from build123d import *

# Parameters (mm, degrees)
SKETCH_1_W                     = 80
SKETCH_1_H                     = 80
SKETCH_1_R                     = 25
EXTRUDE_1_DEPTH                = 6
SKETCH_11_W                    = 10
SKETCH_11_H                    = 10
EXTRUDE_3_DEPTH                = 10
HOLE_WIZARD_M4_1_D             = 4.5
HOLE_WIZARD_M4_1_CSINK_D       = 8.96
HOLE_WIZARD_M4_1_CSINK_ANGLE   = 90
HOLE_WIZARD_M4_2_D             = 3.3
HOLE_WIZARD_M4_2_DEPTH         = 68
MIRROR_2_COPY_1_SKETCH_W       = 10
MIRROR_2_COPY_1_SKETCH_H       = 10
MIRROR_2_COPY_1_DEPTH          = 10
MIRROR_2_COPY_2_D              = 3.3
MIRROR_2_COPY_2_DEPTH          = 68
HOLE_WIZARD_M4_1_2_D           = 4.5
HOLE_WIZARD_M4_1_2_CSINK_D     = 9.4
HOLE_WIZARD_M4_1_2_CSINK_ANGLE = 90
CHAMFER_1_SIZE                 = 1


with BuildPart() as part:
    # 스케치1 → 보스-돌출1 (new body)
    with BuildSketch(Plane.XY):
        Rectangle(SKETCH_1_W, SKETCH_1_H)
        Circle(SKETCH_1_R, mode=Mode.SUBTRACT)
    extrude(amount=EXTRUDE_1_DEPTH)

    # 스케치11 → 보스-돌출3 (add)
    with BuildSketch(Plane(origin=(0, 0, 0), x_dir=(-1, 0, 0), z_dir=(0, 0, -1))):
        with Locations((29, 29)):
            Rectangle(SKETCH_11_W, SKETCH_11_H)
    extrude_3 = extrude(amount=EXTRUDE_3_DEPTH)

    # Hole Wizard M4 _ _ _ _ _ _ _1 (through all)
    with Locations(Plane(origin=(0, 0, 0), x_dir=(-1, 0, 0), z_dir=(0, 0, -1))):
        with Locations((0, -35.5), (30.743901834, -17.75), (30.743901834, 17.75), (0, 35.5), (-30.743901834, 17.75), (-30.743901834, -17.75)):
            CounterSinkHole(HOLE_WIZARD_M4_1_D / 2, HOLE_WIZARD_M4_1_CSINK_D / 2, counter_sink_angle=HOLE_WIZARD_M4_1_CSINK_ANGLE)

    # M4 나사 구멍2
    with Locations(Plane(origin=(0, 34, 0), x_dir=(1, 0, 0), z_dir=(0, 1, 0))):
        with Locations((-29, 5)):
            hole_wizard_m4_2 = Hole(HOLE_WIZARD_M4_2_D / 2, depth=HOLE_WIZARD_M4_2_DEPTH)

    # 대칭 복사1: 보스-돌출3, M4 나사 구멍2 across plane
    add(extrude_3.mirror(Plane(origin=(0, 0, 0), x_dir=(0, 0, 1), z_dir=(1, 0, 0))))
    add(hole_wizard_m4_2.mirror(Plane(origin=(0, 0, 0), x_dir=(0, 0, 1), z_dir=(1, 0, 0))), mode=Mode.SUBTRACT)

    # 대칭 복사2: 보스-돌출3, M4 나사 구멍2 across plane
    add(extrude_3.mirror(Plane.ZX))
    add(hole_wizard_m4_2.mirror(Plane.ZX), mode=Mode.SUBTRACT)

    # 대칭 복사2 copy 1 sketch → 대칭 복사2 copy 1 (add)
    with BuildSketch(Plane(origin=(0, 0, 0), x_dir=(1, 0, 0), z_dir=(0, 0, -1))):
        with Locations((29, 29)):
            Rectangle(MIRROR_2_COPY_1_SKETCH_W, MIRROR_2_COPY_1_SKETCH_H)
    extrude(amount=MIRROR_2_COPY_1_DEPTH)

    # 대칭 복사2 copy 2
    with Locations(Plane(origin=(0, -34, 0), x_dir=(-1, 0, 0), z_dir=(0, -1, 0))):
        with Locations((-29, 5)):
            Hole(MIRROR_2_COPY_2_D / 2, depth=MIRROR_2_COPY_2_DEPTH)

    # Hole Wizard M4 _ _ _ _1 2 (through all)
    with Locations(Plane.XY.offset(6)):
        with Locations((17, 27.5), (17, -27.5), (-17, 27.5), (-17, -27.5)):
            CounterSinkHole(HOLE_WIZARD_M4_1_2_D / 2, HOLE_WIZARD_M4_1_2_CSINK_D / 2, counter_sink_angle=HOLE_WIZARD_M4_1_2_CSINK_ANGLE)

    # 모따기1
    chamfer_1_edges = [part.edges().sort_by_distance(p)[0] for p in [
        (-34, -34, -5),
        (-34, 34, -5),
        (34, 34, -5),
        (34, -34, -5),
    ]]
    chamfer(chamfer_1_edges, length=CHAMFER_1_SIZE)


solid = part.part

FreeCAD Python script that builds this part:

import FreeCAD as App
import Part
import Sketcher
from FreeCAD import Vector
Q = App.Units.Quantity


def edges_at(feature, points):
    """Names of the edges that pass closest to the given points."""
    edges = feature.Shape.Edges
    near = lambda p: min(range(len(edges)), key=lambda i: edges[i].distToShape(Part.Vertex(*p))[0])
    return sorted({f"Edge{near(p) + 1}" for p in points})

doc = App.newDocument("Part")
body = doc.addObject("PartDesign::Body", "Body")

# Sketch on XY plane
sketch1 = body.newObject("Sketcher::SketchObject", "Sketch")
sketch1.AttachmentSupport = (doc.getObject("XY_Plane"), [""])
sketch1.MapMode = "FlatFace"
sketch1.addGeometry([
    Part.LineSegment(Vector(-40, 40, 0), Vector(-40, -40, 0)),  # 0
    Part.LineSegment(Vector(-40, -40, 0), Vector(40, -40, 0)),  # 1
    Part.LineSegment(Vector(40, -40, 0), Vector(40, 40, 0)),  # 2
    Part.LineSegment(Vector(40, 40, 0), Vector(-40, 40, 0)),  # 3
    Part.Circle(Vector(0, 0, 0), Vector(0, 0, 1), 25),  # 4
], False)
sketch1.addConstraint([
    Sketcher.Constraint("Coincident", 0, 2, 1, 1),
    Sketcher.Constraint("Coincident", 1, 2, 2, 1),
    Sketcher.Constraint("Coincident", 2, 2, 3, 1),
    Sketcher.Constraint("Coincident", 3, 2, 0, 1),
    Sketcher.Constraint("Vertical", 0),
    Sketcher.Constraint("Horizontal", 1),
    Sketcher.Constraint("Vertical", 2),
    Sketcher.Constraint("Horizontal", 3),
    Sketcher.Constraint("Coincident", 4, 3, -1, 1),
    Sketcher.Constraint("Symmetric", 0, 2, 2, 2, -1, 1),
    Sketcher.Constraint("Equal", 3, 0),
    Sketcher.Constraint("Diameter", 4, Q("50 mm")),
    Sketcher.Constraint("DistanceX", 1, 1, 1, 2, Q("80 mm")),
])
pad1 = body.newObject("PartDesign::Pad", "Pad")
pad1.Profile = sketch1
pad1.Length = 6

# Sketch on XY plane
sketch2 = body.newObject("Sketcher::SketchObject", "Sketch001")
sketch2.AttachmentSupport = (doc.getObject("XY_Plane"), [""])
sketch2.MapMode = "FlatFace"
sketch2.addGeometry([
    Part.LineSegment(Vector(-24, 34, 0), Vector(-24, 24, 0)),
    Part.LineSegment(Vector(-24, 24, 0), Vector(-34, 24, 0)),
    Part.LineSegment(Vector(-34, 24, 0), Vector(-34, 34, 0)),
    Part.LineSegment(Vector(-34, 34, 0), Vector(-24, 34, 0)),
], False)
sketch2.addConstraint([
    Sketcher.Constraint("Coincident", 0, 2, 1, 1),
    Sketcher.Constraint("Coincident", 1, 2, 2, 1),
    Sketcher.Constraint("Coincident", 2, 2, 3, 1),
    Sketcher.Constraint("Coincident", 3, 2, 0, 1),
    Sketcher.Constraint("Vertical", 0),
    Sketcher.Constraint("Horizontal", 1),
    Sketcher.Constraint("Vertical", 2),
    Sketcher.Constraint("Horizontal", 3),
    Sketcher.Constraint("Equal", 3, 0),
    Sketcher.Constraint("DistanceX", 1, 2, 1, 1, Q("10 mm")),
    Sketcher.Constraint("DistanceX", 0, 2, -1, 1, Q("24 mm")),
    Sketcher.Constraint("DistanceY", -1, 1, 0, 2, Q("24 mm")),
])
pad2 = body.newObject("PartDesign::Pad", "Pad001")
pad2.Profile = sketch2
pad2.Length = 10
pad2.Reversed = True

# Sketch on XY plane
sketch3 = body.newObject("Sketcher::SketchObject", "Sketch002")
sketch3.AttachmentSupport = (doc.getObject("XY_Plane"), [""])
sketch3.MapMode = "FlatFace"
sketch3.addGeometry([
    Part.Circle(Vector(0, -35.5, 0), Vector(0, 0, 1), 2.25),  # 0
    Part.Circle(Vector(-30.743902, -17.75, 0), Vector(0, 0, 1), 2.25),  # 1
    Part.Circle(Vector(-30.743902, 17.75, 0), Vector(0, 0, 1), 2.25),  # 2
    Part.Circle(Vector(0, 35.5, 0), Vector(0, 0, 1), 2.25),  # 3
    Part.Circle(Vector(30.743902, 17.75, 0), Vector(0, 0, 1), 2.25),  # 4
    Part.Circle(Vector(30.743902, -17.75, 0), Vector(0, 0, 1), 2.25),  # 5
], False)
sketch3.addConstraint([
    Sketcher.Constraint("Equal", 0, 1),
    Sketcher.Constraint("Equal", 1, 2),
    Sketcher.Constraint("Equal", 2, 3),
    Sketcher.Constraint("Equal", 3, 4),
    Sketcher.Constraint("Equal", 4, 5),
    Sketcher.Constraint("Symmetric", 0, 3, 3, 3, -1, 1),
    Sketcher.Constraint("Symmetric", 1, 3, 4, 3, -1, 1),
    Sketcher.Constraint("Symmetric", 2, 3, 5, 3, -1, 1),
    Sketcher.Constraint("Symmetric", 2, 3, 4, 3, -2),
    Sketcher.Constraint("PointOnObject", 0, 3, -2),
    Sketcher.Constraint("Diameter", 0, Q("4.5 mm")),
    Sketcher.Constraint("DistanceY", 0, 3, 3, 3, Q("71 mm")),
    Sketcher.Constraint("DistanceY", 1, 3, 2, 3, Q("35.5 mm")),
    Sketcher.Constraint("DistanceX", 1, 3, -1, 1, Q("30.743902 mm")),
])
doc.recompute()
hole = body.newObject("PartDesign::Hole", "Hole")
hole.Profile = sketch3
hole.ThreadType = "None"
hole.Diameter = 4.5
hole.DepthType = "ThroughAll"
hole.HoleCutType = "Countersink"
hole.HoleCutDiameter = 8.96
hole.HoleCutCountersinkAngle = 90
hole.Reversed = True

# Sketch on XZ plane
sketch4 = body.newObject("Sketcher::SketchObject", "Sketch003")
sketch4.AttachmentSupport = (doc.getObject("XZ_Plane"), [""])
sketch4.MapMode = "FlatFace"
sketch4.AttachmentOffset = App.Placement(Vector(0, 0, -34), App.Rotation())
sketch4.addGeometry(Part.Circle(Vector(-29, -5, 0), Vector(0, 0, 1), 1.65), False)
sketch4.addConstraint([
    Sketcher.Constraint("Diameter", 0, Q("3.3 mm")),
    Sketcher.Constraint("DistanceX", 0, 3, -1, 1, Q("29 mm")),
    Sketcher.Constraint("DistanceY", 0, 3, -1, 1, Q("5 mm")),
])
doc.recompute()
hole2 = body.newObject("PartDesign::Hole", "Hole001")
hole2.Profile = sketch4
hole2.ThreadType = "None"
hole2.Diameter = 3.3
hole2.DepthType = "Dimension"
hole2.Depth = 68
hole2.DrillPoint = "Flat"
hole2.Reversed = True
doc.recompute()

mirrored = body.newObject("PartDesign::Mirrored", "Mirrored")
mirrored.Originals = [pad2, hole2]
mirrored.MirrorPlane = (doc.getObject("YZ_Plane"), [""])
body.Tip = mirrored
doc.recompute()

mirrored2 = body.newObject("PartDesign::Mirrored", "Mirrored001")
mirrored2.Originals = [pad2, hole2]
mirrored2.MirrorPlane = (doc.getObject("XZ_Plane"), [""])
body.Tip = mirrored2

# Sketch on XY plane
sketch5 = body.newObject("Sketcher::SketchObject", "Sketch004")
sketch5.AttachmentSupport = (doc.getObject("XY_Plane"), [""])
sketch5.MapMode = "FlatFace"
sketch5.addGeometry([
    Part.LineSegment(Vector(24, -34, 0), Vector(24, -24, 0)),
    Part.LineSegment(Vector(24, -24, 0), Vector(34, -24, 0)),
    Part.LineSegment(Vector(34, -24, 0), Vector(34, -34, 0)),
    Part.LineSegment(Vector(34, -34, 0), Vector(24, -34, 0)),
], False)
sketch5.addConstraint([
    Sketcher.Constraint("Coincident", 0, 2, 1, 1),
    Sketcher.Constraint("Coincident", 1, 2, 2, 1),
    Sketcher.Constraint("Coincident", 2, 2, 3, 1),
    Sketcher.Constraint("Coincident", 3, 2, 0, 1),
    Sketcher.Constraint("Vertical", 0),
    Sketcher.Constraint("Horizontal", 1),
    Sketcher.Constraint("Vertical", 2),
    Sketcher.Constraint("Horizontal", 3),
    Sketcher.Constraint("Equal", 3, 0),
    Sketcher.Constraint("DistanceX", 1, 1, 1, 2, Q("10 mm")),
    Sketcher.Constraint("DistanceX", -1, 1, 0, 2, Q("24 mm")),
    Sketcher.Constraint("DistanceY", 0, 2, -1, 1, Q("24 mm")),
])
pad3 = body.newObject("PartDesign::Pad", "Pad002")
pad3.Profile = sketch5
pad3.Length = 10
pad3.Reversed = True

# Sketch on XZ plane
sketch6 = body.newObject("Sketcher::SketchObject", "Sketch005")
sketch6.AttachmentSupport = (doc.getObject("XZ_Plane"), [""])
sketch6.MapMode = "FlatFace"
sketch6.AttachmentOffset = App.Placement(Vector(0, 0, 34), App.Rotation())
sketch6.addGeometry(Part.Circle(Vector(29, -5, 0), Vector(0, 0, 1), 1.65), False)
sketch6.addConstraint([
    Sketcher.Constraint("Diameter", 0, Q("3.3 mm")),
    Sketcher.Constraint("DistanceX", -1, 1, 0, 3, Q("29 mm")),
    Sketcher.Constraint("DistanceY", 0, 3, -1, 1, Q("5 mm")),
])
doc.recompute()
hole3 = body.newObject("PartDesign::Hole", "Hole002")
hole3.Profile = sketch6
hole3.ThreadType = "None"
hole3.Diameter = 3.3
hole3.DepthType = "Dimension"
hole3.Depth = 68
hole3.DrillPoint = "Flat"

# Sketch on XY plane
sketch7 = body.newObject("Sketcher::SketchObject", "Sketch006")
sketch7.AttachmentSupport = (doc.getObject("XY_Plane"), [""])
sketch7.MapMode = "FlatFace"
sketch7.AttachmentOffset = App.Placement(Vector(0, 0, 6), App.Rotation())
sketch7.addGeometry([
    Part.Circle(Vector(17, 27.5, 0), Vector(0, 0, 1), 2.25),
    Part.Circle(Vector(17, -27.5, 0), Vector(0, 0, 1), 2.25),
    Part.Circle(Vector(-17, 27.5, 0), Vector(0, 0, 1), 2.25),
    Part.Circle(Vector(-17, -27.5, 0), Vector(0, 0, 1), 2.25),
], False)
sketch7.addConstraint([
    Sketcher.Constraint("Equal", 0, 1),
    Sketcher.Constraint("Equal", 1, 2),
    Sketcher.Constraint("Equal", 2, 3),
    Sketcher.Constraint("Symmetric", 1, 3, 2, 3, -1, 1),
    Sketcher.Constraint("Symmetric", 0, 3, 3, 3, -1, 1),
    Sketcher.Constraint("Symmetric", 0, 3, 2, 3, -2),
    Sketcher.Constraint("Diameter", 0, Q("4.5 mm")),
    Sketcher.Constraint("DistanceX", -1, 1, 0, 3, Q("17 mm")),
    Sketcher.Constraint("DistanceY", 1, 3, 0, 3, Q("55 mm")),
])
doc.recompute()
hole4 = body.newObject("PartDesign::Hole", "Hole003")
hole4.Profile = sketch7
hole4.ThreadType = "None"
hole4.Diameter = 4.5
hole4.DepthType = "ThroughAll"
hole4.HoleCutType = "Countersink"
hole4.HoleCutDiameter = 9.4
hole4.HoleCutCountersinkAngle = 90
doc.recompute()

chamfer = body.newObject("PartDesign::Chamfer", "Chamfer")
chamfer.Base = (hole4, edges_at(hole4, [
    (-34, -34, -5),
    (-34, 34, -5),
    (34, 34, -5),
    (34, -34, -5),
]))
chamfer.Size = 1

doc.recompute()
